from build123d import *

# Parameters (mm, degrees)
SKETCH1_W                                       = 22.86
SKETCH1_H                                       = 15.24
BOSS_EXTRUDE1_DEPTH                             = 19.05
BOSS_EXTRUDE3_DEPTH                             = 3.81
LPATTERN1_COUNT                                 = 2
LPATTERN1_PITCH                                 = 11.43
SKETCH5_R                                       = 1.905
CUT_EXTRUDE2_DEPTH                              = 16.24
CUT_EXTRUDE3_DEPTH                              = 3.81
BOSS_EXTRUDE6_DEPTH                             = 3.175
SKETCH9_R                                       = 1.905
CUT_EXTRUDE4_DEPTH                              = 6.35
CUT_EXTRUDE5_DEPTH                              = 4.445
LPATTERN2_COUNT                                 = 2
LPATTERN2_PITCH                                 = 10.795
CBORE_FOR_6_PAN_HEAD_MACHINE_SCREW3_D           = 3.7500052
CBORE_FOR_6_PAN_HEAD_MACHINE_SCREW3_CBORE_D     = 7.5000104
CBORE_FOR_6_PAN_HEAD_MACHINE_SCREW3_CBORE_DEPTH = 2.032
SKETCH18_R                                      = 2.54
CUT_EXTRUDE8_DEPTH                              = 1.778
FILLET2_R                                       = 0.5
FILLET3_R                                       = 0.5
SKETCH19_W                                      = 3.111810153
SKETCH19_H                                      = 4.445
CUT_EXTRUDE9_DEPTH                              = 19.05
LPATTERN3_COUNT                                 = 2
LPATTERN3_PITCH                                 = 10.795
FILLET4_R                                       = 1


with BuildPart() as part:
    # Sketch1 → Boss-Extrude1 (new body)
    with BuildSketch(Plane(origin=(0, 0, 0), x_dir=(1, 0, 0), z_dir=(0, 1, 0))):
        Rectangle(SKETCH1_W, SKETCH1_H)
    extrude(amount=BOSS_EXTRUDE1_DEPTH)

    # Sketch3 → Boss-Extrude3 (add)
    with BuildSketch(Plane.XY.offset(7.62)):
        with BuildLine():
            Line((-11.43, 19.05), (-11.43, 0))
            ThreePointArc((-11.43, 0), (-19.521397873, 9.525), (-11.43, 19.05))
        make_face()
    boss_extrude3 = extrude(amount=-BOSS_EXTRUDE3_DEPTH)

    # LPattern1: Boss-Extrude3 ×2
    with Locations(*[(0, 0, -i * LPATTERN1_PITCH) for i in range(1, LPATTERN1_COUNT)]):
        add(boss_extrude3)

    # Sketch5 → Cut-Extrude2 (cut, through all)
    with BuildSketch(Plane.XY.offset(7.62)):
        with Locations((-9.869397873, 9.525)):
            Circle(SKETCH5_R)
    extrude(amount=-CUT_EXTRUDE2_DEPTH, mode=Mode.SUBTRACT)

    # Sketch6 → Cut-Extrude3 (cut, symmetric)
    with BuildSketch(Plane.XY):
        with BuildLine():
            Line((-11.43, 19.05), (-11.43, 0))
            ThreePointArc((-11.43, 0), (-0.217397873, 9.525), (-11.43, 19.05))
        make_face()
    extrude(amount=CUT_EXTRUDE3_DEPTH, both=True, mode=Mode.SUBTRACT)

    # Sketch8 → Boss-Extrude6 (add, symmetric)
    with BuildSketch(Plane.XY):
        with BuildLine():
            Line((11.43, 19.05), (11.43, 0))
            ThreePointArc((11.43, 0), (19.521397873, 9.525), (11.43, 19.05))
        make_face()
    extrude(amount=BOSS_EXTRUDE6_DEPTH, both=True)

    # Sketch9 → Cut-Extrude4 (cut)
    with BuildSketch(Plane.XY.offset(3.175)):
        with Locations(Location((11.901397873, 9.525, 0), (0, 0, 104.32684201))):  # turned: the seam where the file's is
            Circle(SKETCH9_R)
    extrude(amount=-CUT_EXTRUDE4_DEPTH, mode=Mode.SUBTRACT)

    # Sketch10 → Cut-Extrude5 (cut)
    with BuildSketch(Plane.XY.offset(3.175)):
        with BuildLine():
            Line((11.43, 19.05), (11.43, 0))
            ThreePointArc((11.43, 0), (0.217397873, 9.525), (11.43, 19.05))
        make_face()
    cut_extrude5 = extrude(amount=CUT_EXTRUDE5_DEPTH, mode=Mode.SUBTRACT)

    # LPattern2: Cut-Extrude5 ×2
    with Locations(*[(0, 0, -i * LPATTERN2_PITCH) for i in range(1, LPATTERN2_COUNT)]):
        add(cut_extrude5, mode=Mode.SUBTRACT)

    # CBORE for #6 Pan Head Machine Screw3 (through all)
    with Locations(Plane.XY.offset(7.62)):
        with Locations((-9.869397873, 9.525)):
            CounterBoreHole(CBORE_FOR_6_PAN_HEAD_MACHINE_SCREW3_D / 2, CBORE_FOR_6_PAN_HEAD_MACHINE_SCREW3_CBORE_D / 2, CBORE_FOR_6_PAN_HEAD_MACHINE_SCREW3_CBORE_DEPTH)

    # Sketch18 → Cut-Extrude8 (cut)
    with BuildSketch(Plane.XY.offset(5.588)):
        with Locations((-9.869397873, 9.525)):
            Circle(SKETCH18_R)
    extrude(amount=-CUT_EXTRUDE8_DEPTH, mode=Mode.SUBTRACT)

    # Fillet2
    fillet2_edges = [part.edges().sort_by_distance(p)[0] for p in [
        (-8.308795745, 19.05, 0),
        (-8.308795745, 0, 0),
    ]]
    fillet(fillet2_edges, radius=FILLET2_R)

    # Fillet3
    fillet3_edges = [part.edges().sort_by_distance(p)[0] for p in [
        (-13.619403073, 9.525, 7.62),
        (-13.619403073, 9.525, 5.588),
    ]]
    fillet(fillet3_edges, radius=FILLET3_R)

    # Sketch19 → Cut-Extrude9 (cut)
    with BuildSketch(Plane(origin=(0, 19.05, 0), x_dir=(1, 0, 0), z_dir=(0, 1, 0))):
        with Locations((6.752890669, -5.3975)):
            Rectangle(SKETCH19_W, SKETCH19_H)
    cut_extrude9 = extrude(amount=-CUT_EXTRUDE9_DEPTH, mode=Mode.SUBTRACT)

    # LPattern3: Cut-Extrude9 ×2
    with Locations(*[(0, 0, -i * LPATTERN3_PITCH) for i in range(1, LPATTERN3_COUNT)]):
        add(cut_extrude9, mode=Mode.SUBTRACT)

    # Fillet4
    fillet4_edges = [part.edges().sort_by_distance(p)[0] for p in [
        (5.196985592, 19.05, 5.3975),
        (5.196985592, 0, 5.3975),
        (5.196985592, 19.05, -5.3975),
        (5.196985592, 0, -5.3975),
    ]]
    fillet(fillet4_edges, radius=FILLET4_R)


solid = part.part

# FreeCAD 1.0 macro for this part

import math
import FreeCAD as App
import Part
import Sketcher

V = App.Vector
Q = App.Units.Quantity


def edges_at(feature, points):
    """Names of the edges that pass closest to the given points."""
    edges = feature.Shape.Edges
    near = lambda p: min(range(len(edges)), key=lambda i: edges[i].distToShape(Part.Vertex(*p))[0])
    return sorted({f"Edge{near(p) + 1}" for p in points})

doc = App.newDocument("Part")
params = doc.addObject("Spreadsheet::Sheet", "Params")
for row, (alias, value) in enumerate([
    ("sketch1_width", "0.9 in"),
    ("sketch1_height", "0.6 in"),
    ("pad1_length", "0.75 in"),
    ("sketch2_radius", "0.38 in"),
    ("sketch2_height", "0.75 in"),
    ("pad2_length", "0.15 in"),
    ("linearpattern_pitch", "0.45 in"),
    ("sketch3_diameter", "0.15 in"),
    ("sketch4_radius", "0.38 in"),
    ("sketch4_height", "0.75 in"),
    ("pocket2_length", "0.3 in"),
    ("sketch5_radius", "0.38 in"),
    ("sketch5_height", "0.75 in"),
    ("pad3_length", "0.25 in"),
    ("sketch6_diameter", "0.15 in"),
    ("pocket3_length", "0.25 in"),
    ("sketch7_radius", "0.38 in"),
    ("sketch7_height", "0.75 in"),
    ("pocket4_length", "0.175 in"),
    ("linearpattern2_pitch", "0.425 in"),
    ("hole_diameter", "3.750005 mm"),
    ("hole_cbore_diameter", "7.50001 mm"),
    ("hole_cbore_depth", "0.08 in"),
    ("sketch9_diameter", "0.2 in"),
    ("pocket5_length", "0.07 in"),
    ("fillet_radius", "0.5 mm"),
    ("fillet2_radius", "0.5 mm"),
    ("sketch10_height", "0.175 in"),
    ("pocket6_length", "0.75 in"),
    ("linearpattern3_pitch", "0.425 in"),
    ("fillet3_radius", "1 mm"),
], start=1):
    params.set(f"A{row}", alias)
    params.set(f"B{row}", "=" + value)
    params.setAlias(f"B{row}", alias)

body = doc.addObject("PartDesign::Body", "Body")

# Sketch on XZ plane
sketch1 = body.newObject("Sketcher::SketchObject", "Sketch")
sketch1.AttachmentSupport = (doc.getObject("XZ_Plane"), [""])
sketch1.MapMode = "FlatFace"
sketch1.addGeometry(Part.LineSegment(V(-11, -8, 0), V(-11, 8, 0)), False)
sketch1.addGeometry(Part.LineSegment(V(-11, 8, 0), V(11, 8, 0)), False)
sketch1.addGeometry(Part.LineSegment(V(11, 8, 0), V(11, -8, 0)), False)
sketch1.addGeometry(Part.LineSegment(V(11, -8, 0), V(-11, -8, 0)), False)
sketch1.addConstraint(Sketcher.Constraint("Coincident", 0, 2, 1, 1))
sketch1.addConstraint(Sketcher.Constraint("Coincident", 1, 2, 2, 1))
sketch1.addConstraint(Sketcher.Constraint("Coincident", 2, 2, 3, 1))
sketch1.addConstraint(Sketcher.Constraint("Coincident", 3, 2, 0, 1))
sketch1.addConstraint(Sketcher.Constraint("Vertical", 0))
sketch1.addConstraint(Sketcher.Constraint("Horizontal", 1))
sketch1.addConstraint(Sketcher.Constraint("Vertical", 2))
sketch1.addConstraint(Sketcher.Constraint("Horizontal", 3))
sketch1.addConstraint(Sketcher.Constraint("Symmetric", 0, 2, 2, 2, -1, 1))
sketch1.addConstraint(Sketcher.Constraint("DistanceX", 1, 1, 1, 2, Q("0.9 in")))
sketch1.addConstraint(Sketcher.Constraint("DistanceY", 0, 1, 0, 2, Q("0.6 in")))
sketch1.setExpression("Constraints[9]", "Params.sketch1_width")
sketch1.setExpression("Constraints[10]", "Params.sketch1_height")
pad1 = body.newObject("PartDesign::Pad", "Pad")
pad1.Profile = sketch1
pad1.setExpression("Length", "Params.pad1_length")
pad1.Reversed = True

# Sketch on XY plane
sketch2 = body.newObject("Sketcher::SketchObject", "Sketch001")
sketch2.AttachmentSupport = (doc.getObject("XY_Plane"), [""])
sketch2.MapMode = "FlatFace"
sketch2.AttachmentOffset = App.Placement(V(0, 0, 0.3 * 25.4), App.Rotation())
sketch2.addGeometry(Part.LineSegment(V(-11, 0, 0), V(-11, 19, 0)), False)
sketch2.addGeometry(Part.ArcOfCircle(Part.Circle(V(-10, 10, 0), V(0, 0, 1), 10), math.radians(99), math.radians(261)), False)
sketch2.addConstraint(Sketcher.Constraint("Coincident", 0, 1, 1, 2))
sketch2.addConstraint(Sketcher.Constraint("Coincident", 1, 1, 0, 2))
sketch2.addConstraint(Sketcher.Constraint("Vertical", 0))
sketch2.addConstraint(Sketcher.Constraint("PointOnObject", 0, 1, -1))
sketch2.addConstraint(Sketcher.Constraint("Radius", 1, Q("0.38 in")))
sketch2.addConstraint(Sketcher.Constraint("DistanceY", 0, 1, 0, 2, Q("0.75 in")))
sketch2.addConstraint(Sketcher.Constraint("DistanceX", 0, 1, -1, 1, Q("0.45 in")))
sketch2.setExpression("Constraints[4]", "Params.sketch2_radius")
sketch2.setExpression("Constraints[5]", "Params.sketch2_height")
pad2 = body.newObject("PartDesign::Pad", "Pad001")
pad2.Profile = sketch2
pad2.setExpression("Length", "Params.pad2_length")
pad2.Reversed = True
doc.recompute()

linearpattern = body.newObject("PartDesign::LinearPattern", "LinearPattern")
linearpattern.Originals = [pad2]
linearpattern.Direction = (doc.getObject("Z_Axis"), [""])
linearpattern.Mode = "offset"
linearpattern.setExpression("Offset", "Params.linearpattern_pitch")
linearpattern.Occurrences = 2
linearpattern.Reversed = True
body.Tip = linearpattern

# Sketch on XY plane
sketch3 = body.newObject("Sketcher::SketchObject", "Sketch002")
sketch3.AttachmentSupport = (doc.getObject("XY_Plane"), [""])
sketch3.MapMode = "FlatFace"
sketch3.AttachmentOffset = App.Placement(V(0, 0, 0.3 * 25.4), App.Rotation())
sketch3.addGeometry(Part.Circle(V(-9.9, 9.5, 0), V(0, 0, 1), 1.9), False)
sketch3.addConstraint(Sketcher.Constraint("Diameter", 0, Q("0.15 in")))
sketch3.addConstraint(Sketcher.Constraint("DistanceY", -1, 1, 0, 3, Q("0.375 in")))
sketch3.addConstraint(Sketcher.Constraint("DistanceX", 0, 3, -1, 1, Q("9.869398 mm")))
sketch3.setExpression("Constraints[0]", "Params.sketch3_diameter")
pocket1 = body.newObject("PartDesign::Pocket", "Pocket")
pocket1.Profile = sketch3
pocket1.Type = "ThroughAll"

# Sketch on XY plane
sketch4 = body.newObject("Sketcher::SketchObject", "Sketch003")
sketch4.AttachmentSupport = (doc.getObject("XY_Plane"), [""])
sketch4.MapMode = "FlatFace"
sketch4.addGeometry(Part.LineSegment(V(-11, 19, 0), V(-11, 0, 0)), False)
sketch4.addGeometry(Part.ArcOfCircle(Part.Circle(V(-10, 10, 0), V(0, 0, 1), 10), math.radians(-99), math.radians(99)), False)
sketch4.addConstraint(Sketcher.Constraint("Coincident", 0, 1, 1, 2))
sketch4.addConstraint(Sketcher.Constraint("Coincident", 1, 1, 0, 2))
sketch4.addConstraint(Sketcher.Constraint("Vertical", 0))
sketch4.addConstraint(Sketcher.Constraint("PointOnObject", 1, 1, -1))
sketch4.addConstraint(Sketcher.Constraint("Radius", 1, Q("0.38 in")))
sketch4.addConstraint(Sketcher.Constraint("DistanceY", 0, 2, 0, 1, Q("0.75 in")))
sketch4.addConstraint(Sketcher.Constraint("DistanceX", 0, 1, -1, 1, Q("0.45 in")))
sketch4.setExpression("Constraints[4]", "Params.sketch4_radius")
sketch4.setExpression("Constraints[5]", "Params.sketch4_height")
pocket2 = body.newObject("PartDesign::Pocket", "Pocket001")
pocket2.Profile = sketch4
pocket2.setExpression("Length", "Params.pocket2_length")
pocket2.Midplane = True

# Sketch on XY plane
sketch5 = body.newObject("Sketcher::SketchObject", "Sketch004")
sketch5.AttachmentSupport = (doc.getObject("XY_Plane"), [""])
sketch5.MapMode = "FlatFace"
sketch5.addGeometry(Part.LineSegment(V(11, 19, 0), V(11, 0, 0)), False)
sketch5.addGeometry(Part.ArcOfCircle(Part.Circle(V(10, 10, 0), V(0, 0, 1), 10), math.radians(-81), math.radians(81)), False)
sketch5.addConstraint(Sketcher.Constraint("Coincident", 0, 1, 1, 2))
sketch5.addConstraint(Sketcher.Constraint("Coincident", 1, 1, 0, 2))
sketch5.addConstraint(Sketcher.Constraint("Vertical", 0))
sketch5.addConstraint(Sketcher.Constraint("PointOnObject", 1, 1, -1))
sketch5.addConstraint(Sketcher.Constraint("Radius", 1, Q("0.38 in")))
sketch5.addConstraint(Sketcher.Constraint("DistanceY", 0, 2, 0, 1, Q("0.75 in")))
sketch5.addConstraint(Sketcher.Constraint("DistanceX", -1, 1, 0, 1, Q("0.45 in")))
sketch5.setExpression("Constraints[4]", "Params.sketch5_radius")
sketch5.setExpression("Constraints[5]", "Params.sketch5_height")
pad3 = body.newObject("PartDesign::Pad", "Pad002")
pad3.Profile = sketch5
pad3.setExpression("Length", "Params.pad3_length")
pad3.Midplane = True

# Sketch on XY plane
sketch6 = body.newObject("Sketcher::SketchObject", "Sketch005")
sketch6.AttachmentSupport = (doc.getObject("XY_Plane"), [""])
sketch6.MapMode = "FlatFace"
sketch6.AttachmentOffset = App.Placement(V(0, 0, 0.125 * 25.4), App.Rotation())
sketch6.addGeometry(Part.Circle(V(11.9, 9.5, 0), V(0, 0, 1), 1.9), False)
sketch6.addConstraint(Sketcher.Constraint("Diameter", 0, Q("0.15 in")))
sketch6.addConstraint(Sketcher.Constraint("DistanceY", -1, 1, 0, 3, Q("0.375 in")))
sketch6.addConstraint(Sketcher.Constraint("DistanceX", -1, 1, 0, 3, Q("11.901398 mm")))
sketch6.setExpression("Constraints[0]", "Params.sketch6_diameter")
pocket3 = body.newObject("PartDesign::Pocket", "Pocket002")
pocket3.Profile = sketch6
pocket3.setExpression("Length", "Params.pocket3_length")

# Sketch on XY plane
sketch7 = body.newObject("Sketcher::SketchObject", "Sketch006")
sketch7.AttachmentSupport = (doc.getObject("XY_Plane"), [""])
sketch7.MapMode = "FlatFace"
sketch7.AttachmentOffset = App.Placement(V(0, 0, 0.125 * 25.4), App.Rotation())
sketch7.addGeometry(Part.LineSegment(V(11, 0, 0), V(11, 19, 0)), False)
sketch7.addGeometry(Part.ArcOfCircle(Part.Circle(V(10, 10, 0), V(0, 0, 1), 10), math.radians(81), math.radians(279)), False)
sketch7.addConstraint(Sketcher.Constraint("Coincident", 0, 1, 1, 2))
sketch7.addConstraint(Sketcher.Constraint("Coincident", 1, 1, 0, 2))
sketch7.addConstraint(Sketcher.Constraint("Vertical", 0))
sketch7.addConstraint(Sketcher.Constraint("PointOnObject", 0, 1, -1))
sketch7.addConstraint(Sketcher.Constraint("Radius", 1, Q("0.38 in")))
sketch7.addConstraint(Sketcher.Constraint("DistanceY", 0, 1, 0, 2, Q("0.75 in")))
sketch7.addConstraint(Sketcher.Constraint("DistanceX", -1, 1, 0, 1, Q("0.45 in")))
sketch7.setExpression("Constraints[4]", "Params.sketch7_radius")
sketch7.setExpression("Constraints[5]", "Params.sketch7_height")
pocket4 = body.newObject("PartDesign::Pocket", "Pocket003")
pocket4.Profile = sketch7
pocket4.setExpression("Length", "Params.pocket4_length")
pocket4.Reversed = True
doc.recompute()

linearpattern2 = body.newObject("PartDesign::LinearPattern", "LinearPattern001")
linearpattern2.Originals = [pocket4]
linearpattern2.Direction = (doc.getObject("Z_Axis"), [""])
linearpattern2.Mode = "offset"
linearpattern2.setExpression("Offset", "Params.linearpattern2_pitch")
linearpattern2.Occurrences = 2
linearpattern2.Reversed = True
body.Tip = linearpattern2

# Sketch on XY plane
sketch8 = body.newObject("Sketcher::SketchObject", "Sketch007")
sketch8.AttachmentSupport = (doc.getObject("XY_Plane"), [""])
sketch8.MapMode = "FlatFace"
sketch8.AttachmentOffset = App.Placement(V(0, 0, 0.3 * 25.4), App.Rotation())
sketch8.addGeometry(Part.Circle(V(-9.9, 9.5, 0), V(0, 0, 1), 1.9), False)
sketch8.addConstraint(Sketcher.Constraint("DistanceY", -1, 1, 0, 3, Q("0.375 in")))
sketch8.addConstraint(Sketcher.Constraint("Diameter", 0, Q("3.750005 mm")))
sketch8.addConstraint(Sketcher.Constraint("DistanceX", 0, 3, -1, 1, Q("9.869398 mm")))
doc.recompute()
hole = body.newObject("PartDesign::Hole", "Hole")
hole.Profile = sketch8
hole.ThreadType = "None"
hole.setExpression("Diameter", "Params.hole_diameter")
hole.DepthType = "ThroughAll"
hole.HoleCutType = "Counterbore"
hole.setExpression("HoleCutDiameter", "Params.hole_cbore_diameter")
hole.setExpression("HoleCutDepth", "Params.hole_cbore_depth")

# Sketch on XY plane
sketch9 = body.newObject("Sketcher::SketchObject", "Sketch008")
sketch9.AttachmentSupport = (doc.getObject("XY_Plane"), [""])
sketch9.MapMode = "FlatFace"
sketch9.AttachmentOffset = App.Placement(V(0, 0, 0.22 * 25.4), App.Rotation())
sketch9.addGeometry(Part.Circle(V(-9.9, 9.5, 0), V(0, 0, 1), 2.5), False)
sketch9.addConstraint(Sketcher.Constraint("Diameter", 0, Q("0.2 in")))
sketch9.addConstraint(Sketcher.Constraint("DistanceY", -1, 1, 0, 3, Q("0.375 in")))
sketch9.addConstraint(Sketcher.Constraint("DistanceX", 0, 3, -1, 1, Q("9.869398 mm")))
sketch9.setExpression("Constraints[0]", "Params.sketch9_diameter")
pocket5 = body.newObject("PartDesign::Pocket", "Pocket004")
pocket5.Profile = sketch9
pocket5.setExpression("Length", "Params.pocket5_length")
doc.recompute()

fillet = body.newObject("PartDesign::Fillet", "Fillet")
fillet.Base = (pocket5, edges_at(pocket5, [(-8.309, 19.05, 0), (-8.309, 0, 0)]))
fillet.setExpression("Radius", "Params.fillet_radius")
doc.recompute()

fillet2 = body.newObject("PartDesign::Fillet", "Fillet001")
fillet2.Base = (fillet, edges_at(fillet, [(-13.619, 9.525, 7.62), (-13.619, 9.525, 5.588)]))
fillet2.setExpression("Radius", "Params.fillet2_radius")

# Sketch on XZ plane
sketch10 = body.newObject("Sketcher::SketchObject", "Sketch009")
sketch10.AttachmentSupport = (doc.getObject("XZ_Plane"), [""])
sketch10.MapMode = "FlatFace"
sketch10.AttachmentOffset = App.Placement(V(0, 0, -0.75 * 25.4), App.Rotation())
sketch10.addGeometry(Part.LineSegment(V(5.2, 3.2, 0), V(5.2, 7.6, 0)), False)
sketch10.addGeometry(Part.LineSegment(V(5.2, 7.6, 0), V(8.3, 7.6, 0)), False)
sketch10.addGeometry(Part.LineSegment(V(8.3, 7.6, 0), V(8.3, 3.2, 0)), False)
sketch10.addGeometry(Part.LineSegment(V(8.3, 3.2, 0), V(5.2, 3.2, 0)), False)
sketch10.addConstraint(Sketcher.Constraint("Coincident", 0, 2, 1, 1))
sketch10.addConstraint(Sketcher.Constraint("Coincident", 1, 2, 2, 1))
sketch10.addConstraint(Sketcher.Constraint("Coincident", 2, 2, 3, 1))
sketch10.addConstraint(Sketcher.Constraint("Coincident", 3, 2, 0, 1))
sketch10.addConstraint(Sketcher.Constraint("Vertical", 0))
sketch10.addConstraint(Sketcher.Constraint("Horizontal", 1))
sketch10.addConstraint(Sketcher.Constraint("Vertical", 2))
sketch10.addConstraint(Sketcher.Constraint("Horizontal", 3))
sketch10.addConstraint(Sketcher.Constraint("DistanceY", -1, 1, 0, 2, Q("0.3 in")))
sketch10.addConstraint(Sketcher.Constraint("DistanceY", 0, 1, 0, 2, Q("0.175 in")))
sketch10.addConstraint(Sketcher.Constraint("DistanceX", 1, 1, 1, 2, Q("3.11181 mm")))
sketch10.addConstraint(Sketcher.Constraint("DistanceX", -1, 1, 0, 2, Q("5.196986 mm")))
sketch10.setExpression("Constraints[9]", "Params.sketch10_height")
pocket6 = body.newObject("PartDesign::Pocket", "Pocket005")
pocket6.Profile = sketch10
pocket6.setExpression("Length", "Params.pocket6_length")
pocket6.Reversed = True
doc.recompute()

linearpattern3 = body.newObject("PartDesign::LinearPattern", "LinearPattern002")
linearpattern3.Originals = [pocket6]
linearpattern3.Direction = (doc.getObject("Z_Axis"), [""])
linearpattern3.Mode = "offset"
linearpattern3.setExpression("Offset", "Params.linearpattern3_pitch")
linearpattern3.Occurrences = 2
linearpattern3.Reversed = True
body.Tip = linearpattern3
doc.recompute()

fillet3 = body.newObject("PartDesign::Fillet", "Fillet002")
fillet3.Base = (linearpattern3, edges_at(linearpattern3, [
    (5.197, 19.05, 5.397),
    (5.197, 0, 5.397),
    (5.197, 19.05, -5.397),
    (5.197, 0, -5.397),
]))
fillet3.setExpression("Radius", "Params.fillet3_radius")

doc.recompute()
